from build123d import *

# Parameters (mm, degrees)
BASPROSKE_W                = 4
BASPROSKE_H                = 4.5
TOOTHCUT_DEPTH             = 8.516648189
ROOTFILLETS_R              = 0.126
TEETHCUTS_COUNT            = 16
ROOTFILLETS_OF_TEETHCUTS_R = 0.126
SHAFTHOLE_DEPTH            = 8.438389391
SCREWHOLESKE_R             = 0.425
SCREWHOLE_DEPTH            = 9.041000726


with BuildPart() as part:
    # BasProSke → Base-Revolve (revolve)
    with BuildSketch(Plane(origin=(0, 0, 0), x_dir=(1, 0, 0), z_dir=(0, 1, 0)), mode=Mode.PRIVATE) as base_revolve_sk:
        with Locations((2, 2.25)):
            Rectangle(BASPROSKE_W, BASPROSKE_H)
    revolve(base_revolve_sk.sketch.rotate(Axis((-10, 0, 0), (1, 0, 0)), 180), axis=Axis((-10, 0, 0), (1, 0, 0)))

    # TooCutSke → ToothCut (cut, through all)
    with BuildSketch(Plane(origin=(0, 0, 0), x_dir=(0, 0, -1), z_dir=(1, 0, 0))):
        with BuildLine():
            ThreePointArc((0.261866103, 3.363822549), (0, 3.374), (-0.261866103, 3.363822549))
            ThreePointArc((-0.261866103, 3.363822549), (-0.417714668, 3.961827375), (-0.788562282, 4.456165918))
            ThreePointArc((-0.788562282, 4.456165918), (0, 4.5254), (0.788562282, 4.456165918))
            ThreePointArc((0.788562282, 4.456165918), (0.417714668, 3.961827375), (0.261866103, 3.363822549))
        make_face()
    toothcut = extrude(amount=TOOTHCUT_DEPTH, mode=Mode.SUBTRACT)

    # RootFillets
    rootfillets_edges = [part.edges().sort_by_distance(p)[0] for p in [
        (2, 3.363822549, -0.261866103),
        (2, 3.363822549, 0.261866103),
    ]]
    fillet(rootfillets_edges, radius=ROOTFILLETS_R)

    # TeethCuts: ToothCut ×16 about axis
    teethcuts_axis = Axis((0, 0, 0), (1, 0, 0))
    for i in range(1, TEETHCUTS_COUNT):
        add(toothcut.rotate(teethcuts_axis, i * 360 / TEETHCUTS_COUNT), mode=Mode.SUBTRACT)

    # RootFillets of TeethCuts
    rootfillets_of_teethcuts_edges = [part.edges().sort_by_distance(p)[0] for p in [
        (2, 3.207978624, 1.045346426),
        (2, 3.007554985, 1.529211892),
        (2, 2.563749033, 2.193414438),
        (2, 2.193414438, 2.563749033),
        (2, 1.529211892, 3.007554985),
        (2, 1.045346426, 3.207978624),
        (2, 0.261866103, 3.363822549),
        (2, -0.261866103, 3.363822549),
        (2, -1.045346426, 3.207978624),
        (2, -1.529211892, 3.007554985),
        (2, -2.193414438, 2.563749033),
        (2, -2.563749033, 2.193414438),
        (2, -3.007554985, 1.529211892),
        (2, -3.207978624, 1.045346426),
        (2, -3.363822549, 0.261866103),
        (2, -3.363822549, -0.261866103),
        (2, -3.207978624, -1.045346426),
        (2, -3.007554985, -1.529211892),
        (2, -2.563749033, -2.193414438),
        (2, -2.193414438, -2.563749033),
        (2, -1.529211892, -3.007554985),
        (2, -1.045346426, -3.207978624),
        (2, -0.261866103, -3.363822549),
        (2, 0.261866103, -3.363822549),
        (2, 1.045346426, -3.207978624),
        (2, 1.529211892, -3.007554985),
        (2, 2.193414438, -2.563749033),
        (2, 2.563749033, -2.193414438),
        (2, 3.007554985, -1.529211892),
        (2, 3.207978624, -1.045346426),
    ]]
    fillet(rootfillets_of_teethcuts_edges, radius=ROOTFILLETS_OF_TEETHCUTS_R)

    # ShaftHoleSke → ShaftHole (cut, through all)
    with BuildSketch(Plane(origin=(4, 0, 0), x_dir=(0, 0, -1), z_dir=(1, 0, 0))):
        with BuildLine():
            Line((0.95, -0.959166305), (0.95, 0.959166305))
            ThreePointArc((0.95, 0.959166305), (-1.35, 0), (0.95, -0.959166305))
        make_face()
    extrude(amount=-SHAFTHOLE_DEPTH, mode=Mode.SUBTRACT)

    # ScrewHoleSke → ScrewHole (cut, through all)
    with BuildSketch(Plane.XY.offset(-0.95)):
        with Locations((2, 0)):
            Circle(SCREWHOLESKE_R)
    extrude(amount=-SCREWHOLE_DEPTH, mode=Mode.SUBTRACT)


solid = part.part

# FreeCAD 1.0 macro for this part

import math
import FreeCAD as App
import Part
import Sketcher

V = App.Vector
Q = App.Units.Quantity


def edges_at(feature, points):
    """Names of the edges that pass closest to the given points."""
    edges = feature.Shape.Edges
    near = lambda p: min(range(len(edges)), key=lambda i: edges[i].distToShape(Part.Vertex(*p))[0])
    return sorted({f"Edge{near(p) + 1}" for p in points})

doc = App.newDocument("Part")
body = doc.addObject("PartDesign::Body", "Body")

# Sketch on XZ plane
sketch1 = doc.addObject("Sketcher::SketchObject", "Sketch")
body.addObject(sketch1)
sketch1.AttachmentSupport = (doc.XZ_Plane, [""])
sketch1.MapMode = "FlatFace"
sketch1.addGeometry([
    Part.LineSegment(V(0, -4.5, 0), V(0, 0, 0)),
    Part.LineSegment(V(0, 0, 0), V(4, 0, 0)),
    Part.LineSegment(V(4, 0, 0), V(4, -4.5, 0)),
    Part.LineSegment(V(4, -4.5, 0), V(0, -4.5, 0)),
], False)
sketch1.addConstraint([
    Sketcher.Constraint("Coincident", 0, 2, 1, 1),
    Sketcher.Constraint("Coincident", 1, 2, 2, 1),
    Sketcher.Constraint("Coincident", 2, 2, 3, 1),
    Sketcher.Constraint("Coincident", 3, 2, 0, 1),
    Sketcher.Constraint("Vertical", 0),
    Sketcher.Constraint("Horizontal", 1),
    Sketcher.Constraint("Vertical", 2),
    Sketcher.Constraint("Horizontal", 3),
    Sketcher.Constraint("Coincident", 0, 2, -1, 1),
    Sketcher.Constraint("DistanceX", 1, 1, 1, 2, Q("4 mm")),
    Sketcher.Constraint("DistanceY", 0, 1, 0, 2, Q("4.5 mm")),
])
revolution = doc.addObject("PartDesign::Revolution", "Revolution")
body.addObject(revolution)
revolution.Profile = sketch1
revolution.ReferenceAxis = (sketch1, ["H_Axis"])
revolution.Angle = 360

# Sketch on YZ plane
sketch2 = doc.addObject("Sketcher::SketchObject", "Sketch001")
body.addObject(sketch2)
sketch2.AttachmentSupport = (doc.YZ_Plane, [""])
sketch2.MapMode = "FlatFace"
sketch2.addGeometry([
    Part.ArcOfCircle(Part.Circle(V(0, 0, 0), V(0, 0, 1), 3.4), math.radians(-4.45), math.radians(4.45)),
    Part.ArcOfCircle(Part.Circle(V(3.3, -1.9, 0), V(0, 0, 1), 1.6), math.radians(42), math.radians(87)),
    Part.ArcOfCircle(Part.Circle(V(0, 0, 0), V(0, 0, 1), 4.5), math.radians(-10), math.radians(10)),
    Part.ArcOfCircle(Part.Circle(V(3.3, 1.9, 0), V(0, 0, 1), 1.6), math.radians(-87), math.radians(-42)),
], False)
sketch2.addConstraint([
    Sketcher.Constraint("Coincident", 0, 1, 1, 2),
    Sketcher.Constraint("Coincident", 1, 1, 2, 1),
    Sketcher.Constraint("Coincident", 2, 2, 3, 2),
    Sketcher.Constraint("Coincident", 3, 1, 0, 2),
    Sketcher.Constraint("Coincident", 0, 3, -1, 1),
    Sketcher.Constraint("Coincident", 2, 3, -1, 1),
    Sketcher.Constraint("Equal", 1, 3),
    Sketcher.Constraint("Symmetric", 1, 3, 3, 3, -1),
    Sketcher.Constraint("Radius", 1, Q("1.6 mm")),
    Sketcher.Constraint("Radius", 0, Q("3.374 mm")),
    Sketcher.Constraint("Radius", 2, Q("4.5254 mm")),
    Sketcher.Constraint("DistanceY", 1, 3, -1, 1, Q("1.858929 mm")),
    Sketcher.Constraint("DistanceX", 1, 3, 1, 1, Q("1.18925 mm")),
])
pocket1 = doc.addObject("PartDesign::Pocket", "Pocket")
body.addObject(pocket1)
pocket1.Profile = sketch2
pocket1.Type = "ThroughAll"
pocket1.Reversed = True
doc.recompute()

fillet = doc.addObject("PartDesign::Fillet", "Fillet")
body.addObject(fillet)
fillet.Base = (pocket1, edges_at(pocket1, [(2, 3.364, -0.262), (2, 3.364, 0.262)]))
fillet.Radius = 0.126
doc.recompute()

polarpattern = doc.addObject("PartDesign::PolarPattern", "PolarPattern")
body.addObject(polarpattern)
polarpattern.Originals = [pocket1]
polarpattern.Axis = (doc.X_Axis, [""])
polarpattern.Angle = 360
polarpattern.Occurrences = 16
body.Tip = polarpattern
doc.recompute()

fillet2 = doc.addObject("PartDesign::Fillet", "Fillet001")
body.addObject(fillet2)
fillet2.Base = (polarpattern, edges_at(polarpattern, [
    (2, 3.208, 1.045),
    (2, 3.008, 1.529),
    (2, 2.564, 2.193),
    (2, 2.193, 2.564),
    (2, 1.529, 3.008),
    (2, 1.045, 3.208),
    (2, 0.262, 3.364),
    (2, -0.262, 3.364),
    (2, -1.045, 3.208),
    (2, -1.529, 3.008),
    (2, -2.193, 2.564),
    (2, -2.564, 2.193),
    (2, -3.008, 1.529),
    (2, -3.208, 1.045),
    (2, -3.364, 0.262),
    (2, -3.364, -0.262),
    (2, -3.208, -1.045),
    (2, -3.008, -1.529),
    (2, -2.564, -2.193),
    (2, -2.193, -2.564),
    (2, -1.529, -3.008),
    (2, -1.045, -3.208),
    (2, -0.262, -3.364),
    (2, 0.262, -3.364),
    (2, 1.045, -3.208),
    (2, 1.529, -3.008),
    (2, 2.193, -2.564),
    (2, 2.564, -2.193),
    (2, 3.008, -1.529),
    (2, 3.208, -1.045),
]))
fillet2.Radius = 0.126

# Sketch on YZ plane
sketch3 = doc.addObject("Sketcher::SketchObject", "Sketch002")
body.addObject(sketch3)
sketch3.AttachmentSupport = (doc.YZ_Plane, [""])
sketch3.MapMode = "FlatFace"
sketch3.AttachmentOffset = App.Placement(V(0, 0, 4), App.Rotation())
sketch3.addGeometry([
    Part.LineSegment(V(-1, -0.9, 0), V(1, -0.9, 0)),
    Part.ArcOfCircle(Part.Circle(V(0, 0, 0), V(0, 0, 1), 1.4), math.radians(-45), math.radians(225)),
], False)
sketch3.addConstraint([
    Sketcher.Constraint("Coincident", 0, 1, 1, 2),
    Sketcher.Constraint("Coincident", 1, 1, 0, 2),
    Sketcher.Constraint("Horizontal", 0),
    Sketcher.Constraint("Coincident", 1, 3, -1, 1),
    Sketcher.Constraint("Radius", 1, Q("1.35 mm")),
    Sketcher.Constraint("DistanceY", 0, 1, -1, 1, Q("0.95 mm")),
])
pocket2 = doc.addObject("PartDesign::Pocket", "Pocket001")
body.addObject(pocket2)
pocket2.Profile = sketch3
pocket2.Type = "ThroughAll"

# Sketch on XY plane
sketch4 = doc.addObject("Sketcher::SketchObject", "Sketch003")
body.addObject(sketch4)
sketch4.AttachmentSupport = (doc.XY_Plane, [""])
sketch4.MapMode = "FlatFace"
sketch4.AttachmentOffset = App.Placement(V(0, 0, -0.95), App.Rotation())
sketch4.addGeometry(Part.Circle(V(2, 0, 0), V(0, 0, 1), 0.42), False)
sketch4.addConstraint([
    Sketcher.Constraint("PointOnObject", 0, 3, -1),
    Sketcher.Constraint("Diameter", 0, Q("0.85 mm")),
    Sketcher.Constraint("DistanceX", -1, 1, 0, 3, Q("2 mm")),
])
pocket3 = doc.addObject("PartDesign::Pocket", "Pocket002")
body.addObject(pocket3)
pocket3.Profile = sketch4
pocket3.Type = "ThroughAll"

doc.recompute()
